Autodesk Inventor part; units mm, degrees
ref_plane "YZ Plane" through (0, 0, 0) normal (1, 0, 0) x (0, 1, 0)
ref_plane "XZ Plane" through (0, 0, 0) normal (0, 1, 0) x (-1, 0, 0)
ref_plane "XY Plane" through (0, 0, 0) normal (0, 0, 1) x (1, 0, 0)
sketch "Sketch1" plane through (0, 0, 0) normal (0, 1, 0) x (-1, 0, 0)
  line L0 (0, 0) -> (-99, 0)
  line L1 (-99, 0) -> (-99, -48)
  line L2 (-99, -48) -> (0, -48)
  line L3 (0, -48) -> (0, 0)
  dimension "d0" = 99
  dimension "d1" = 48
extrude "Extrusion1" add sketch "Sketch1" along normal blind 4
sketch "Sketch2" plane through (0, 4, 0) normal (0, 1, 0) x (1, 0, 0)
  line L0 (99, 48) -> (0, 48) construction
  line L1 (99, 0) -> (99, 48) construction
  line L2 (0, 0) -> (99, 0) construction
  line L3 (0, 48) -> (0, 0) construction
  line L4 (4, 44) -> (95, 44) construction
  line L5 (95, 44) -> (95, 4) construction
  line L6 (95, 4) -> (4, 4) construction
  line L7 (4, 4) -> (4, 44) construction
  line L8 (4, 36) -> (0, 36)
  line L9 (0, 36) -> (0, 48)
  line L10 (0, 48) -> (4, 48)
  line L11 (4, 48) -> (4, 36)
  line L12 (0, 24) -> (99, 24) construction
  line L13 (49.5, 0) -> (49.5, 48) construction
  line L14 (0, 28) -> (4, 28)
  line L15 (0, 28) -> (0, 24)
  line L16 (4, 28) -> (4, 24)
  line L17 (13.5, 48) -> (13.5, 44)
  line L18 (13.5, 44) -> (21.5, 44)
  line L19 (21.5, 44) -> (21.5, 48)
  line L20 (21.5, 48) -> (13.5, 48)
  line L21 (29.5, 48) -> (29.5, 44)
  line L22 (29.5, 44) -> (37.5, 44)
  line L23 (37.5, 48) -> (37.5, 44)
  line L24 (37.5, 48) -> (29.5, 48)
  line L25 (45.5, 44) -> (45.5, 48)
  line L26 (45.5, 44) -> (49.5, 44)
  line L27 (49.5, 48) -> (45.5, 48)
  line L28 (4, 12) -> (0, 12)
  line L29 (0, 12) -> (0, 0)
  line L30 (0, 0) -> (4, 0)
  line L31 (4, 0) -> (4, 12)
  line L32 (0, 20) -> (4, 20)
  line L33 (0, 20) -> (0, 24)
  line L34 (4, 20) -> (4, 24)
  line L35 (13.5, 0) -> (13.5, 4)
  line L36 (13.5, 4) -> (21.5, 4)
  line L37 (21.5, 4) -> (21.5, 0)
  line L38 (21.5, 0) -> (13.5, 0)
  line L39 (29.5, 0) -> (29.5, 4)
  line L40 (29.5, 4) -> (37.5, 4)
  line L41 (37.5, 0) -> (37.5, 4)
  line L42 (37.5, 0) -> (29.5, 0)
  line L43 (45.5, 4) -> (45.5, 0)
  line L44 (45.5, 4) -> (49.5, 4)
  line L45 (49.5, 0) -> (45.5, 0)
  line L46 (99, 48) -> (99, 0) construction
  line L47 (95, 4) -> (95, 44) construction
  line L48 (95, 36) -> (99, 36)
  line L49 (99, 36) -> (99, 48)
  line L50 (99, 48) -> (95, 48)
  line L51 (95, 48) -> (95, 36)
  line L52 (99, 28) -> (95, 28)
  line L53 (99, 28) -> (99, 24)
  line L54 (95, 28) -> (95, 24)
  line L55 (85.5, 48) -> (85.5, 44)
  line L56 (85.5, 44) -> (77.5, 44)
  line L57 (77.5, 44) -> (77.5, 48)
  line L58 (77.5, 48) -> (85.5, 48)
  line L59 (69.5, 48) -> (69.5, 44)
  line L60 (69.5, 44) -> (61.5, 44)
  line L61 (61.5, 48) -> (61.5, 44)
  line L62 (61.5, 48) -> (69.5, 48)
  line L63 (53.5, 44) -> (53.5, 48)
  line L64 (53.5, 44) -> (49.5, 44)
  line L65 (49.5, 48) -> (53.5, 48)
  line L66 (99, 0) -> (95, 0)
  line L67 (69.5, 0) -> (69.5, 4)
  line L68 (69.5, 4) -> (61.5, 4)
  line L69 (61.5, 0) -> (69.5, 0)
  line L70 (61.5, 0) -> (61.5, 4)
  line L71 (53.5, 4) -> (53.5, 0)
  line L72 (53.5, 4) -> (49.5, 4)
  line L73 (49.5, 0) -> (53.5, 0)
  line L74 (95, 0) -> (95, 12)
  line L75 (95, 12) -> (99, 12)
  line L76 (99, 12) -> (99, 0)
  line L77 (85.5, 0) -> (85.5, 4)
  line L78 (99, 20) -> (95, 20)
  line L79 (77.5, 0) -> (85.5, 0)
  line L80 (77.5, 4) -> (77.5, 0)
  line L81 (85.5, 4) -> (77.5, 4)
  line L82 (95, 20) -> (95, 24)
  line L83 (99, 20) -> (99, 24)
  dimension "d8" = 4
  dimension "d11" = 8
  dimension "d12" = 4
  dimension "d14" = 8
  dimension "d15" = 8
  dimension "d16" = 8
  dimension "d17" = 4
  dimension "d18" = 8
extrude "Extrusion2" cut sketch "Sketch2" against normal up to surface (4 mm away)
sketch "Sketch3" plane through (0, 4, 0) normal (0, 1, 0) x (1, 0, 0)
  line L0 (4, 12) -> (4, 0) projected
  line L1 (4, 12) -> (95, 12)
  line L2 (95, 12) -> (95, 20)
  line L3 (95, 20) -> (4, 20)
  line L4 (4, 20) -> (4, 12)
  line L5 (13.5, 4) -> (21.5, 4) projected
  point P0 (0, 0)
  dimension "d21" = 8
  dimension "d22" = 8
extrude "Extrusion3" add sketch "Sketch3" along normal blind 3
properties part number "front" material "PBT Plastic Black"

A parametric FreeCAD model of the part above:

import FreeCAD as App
import Part
import Sketcher

doc = App.newDocument("Part")
body = doc.addObject("PartDesign::Body", "Body")

sketch1 = body.newObject("Sketcher::SketchObject", "Sketch")
sketch1.AttachmentSupport = (doc.getObject("XZ_Plane"), [""])
sketch1.MapMode = "FlatFace"
sketch1.addGeometry(Part.LineSegment(App.Vector(0, -48, 0), App.Vector(0, 0, 0)), False)
sketch1.addGeometry(Part.LineSegment(App.Vector(0, 0, 0), App.Vector(99, 0, 0)), False)
sketch1.addGeometry(Part.LineSegment(App.Vector(99, 0, 0), App.Vector(99, -48, 0)), False)
sketch1.addGeometry(Part.LineSegment(App.Vector(99, -48, 0), App.Vector(0, -48, 0)), False)
sketch1.addConstraint(Sketcher.Constraint("Coincident", 0, 2, 1, 1))
sketch1.addConstraint(Sketcher.Constraint("Coincident", 1, 2, 2, 1))
sketch1.addConstraint(Sketcher.Constraint("Coincident", 2, 2, 3, 1))
sketch1.addConstraint(Sketcher.Constraint("Coincident", 3, 2, 0, 1))
sketch1.addConstraint(Sketcher.Constraint("Vertical", 0))
sketch1.addConstraint(Sketcher.Constraint("Horizontal", 1))
sketch1.addConstraint(Sketcher.Constraint("Vertical", 2))
sketch1.addConstraint(Sketcher.Constraint("Horizontal", 3))
sketch1.addConstraint(Sketcher.Constraint("Coincident", 0, 2, -1, 1))
sketch1.addConstraint(Sketcher.Constraint("DistanceX", 1, 1, 1, 2, 99.0))
sketch1.addConstraint(Sketcher.Constraint("DistanceY", 0, 1, 0, 2, 48.0))
pad1 = body.newObject("PartDesign::Pad", "Pad")
pad1.Profile = sketch1
pad1.Length = 4
pad1.Reversed = True

sketch2 = body.newObject("Sketcher::SketchObject", "Sketch001")
sketch2.AttachmentSupport = (doc.getObject("XZ_Plane"), [""])
sketch2.MapMode = "FlatFace"
sketch2.AttachmentOffset = App.Placement(App.Vector(0, 0, -4), App.Rotation())
sketch2.addGeometry(Part.LineSegment(App.Vector(0, -36, 0), App.Vector(4, -36, 0)), False)
sketch2.addGeometry(Part.LineSegment(App.Vector(4, -36, 0), App.Vector(4, -48, 0)), False)
sketch2.addGeometry(Part.LineSegment(App.Vector(4, -48, 0), App.Vector(0, -48, 0)), False)
sketch2.addGeometry(Part.LineSegment(App.Vector(0, -48, 0), App.Vector(0, -36, 0)), False)
sketch2.addGeometry(Part.LineSegment(App.Vector(4, -28, 0), App.Vector(0, -28, 0)), False)
sketch2.addGeometry(Part.LineSegment(App.Vector(0, -28, 0), App.Vector(0, -20, 0)), False)
sketch2.addGeometry(Part.LineSegment(App.Vector(0, -20, 0), App.Vector(4, -20, 0)), False)
sketch2.addGeometry(Part.LineSegment(App.Vector(4, -20, 0), App.Vector(4, -28, 0)), False)
sketch2.addGeometry(Part.LineSegment(App.Vector(21.5, -48, 0), App.Vector(13.5, -48, 0)), False)
sketch2.addGeometry(Part.LineSegment(App.Vector(13.5, -48, 0), App.Vector(13.5, -44, 0)), False)
sketch2.addGeometry(Part.LineSegment(App.Vector(13.5, -44, 0), App.Vector(21.5, -44, 0)), False)
sketch2.addGeometry(Part.LineSegment(App.Vector(21.5, -44, 0), App.Vector(21.5, -48, 0)), False)
sketch2.addGeometry(Part.LineSegment(App.Vector(37.5, -48, 0), App.Vector(29.5, -48, 0)), False)
sketch2.addGeometry(Part.LineSegment(App.Vector(29.5, -48, 0), App.Vector(29.5, -44, 0)), False)
sketch2.addGeometry(Part.LineSegment(App.Vector(29.5, -44, 0), App.Vector(37.5, -44, 0)), False)
sketch2.addGeometry(Part.LineSegment(App.Vector(37.5, -44, 0), App.Vector(37.5, -48, 0)), False)
sketch2.addGeometry(Part.LineSegment(App.Vector(45.5, -48, 0), App.Vector(45.5, -44, 0)), False)
sketch2.addGeometry(Part.LineSegment(App.Vector(45.5, -44, 0), App.Vector(53.5, -44, 0)), False)
sketch2.addGeometry(Part.LineSegment(App.Vector(53.5, -44, 0), App.Vector(53.5, -48, 0)), False)
sketch2.addGeometry(Part.LineSegment(App.Vector(53.5, -48, 0), App.Vector(45.5, -48, 0)), False)
sketch2.addGeometry(Part.LineSegment(App.Vector(4, 0, 0), App.Vector(4, -12, 0)), False)
sketch2.addGeometry(Part.LineSegment(App.Vector(4, -12, 0), App.Vector(0, -12, 0)), False)
sketch2.addGeometry(Part.LineSegment(App.Vector(0, -12, 0), App.Vector(0, 0, 0)), False)
sketch2.addGeometry(Part.LineSegment(App.Vector(0, 0, 0), App.Vector(4, 0, 0)), False)
sketch2.addGeometry(Part.LineSegment(App.Vector(13.5, -4, 0), App.Vector(13.5, 0, 0)), False)
sketch2.addGeometry(Part.LineSegment(App.Vector(13.5, 0, 0), App.Vector(21.5, 0, 0)), False)
sketch2.addGeometry(Part.LineSegment(App.Vector(21.5, 0, 0), App.Vector(21.5, -4, 0)), False)
sketch2.addGeometry(Part.LineSegment(App.Vector(21.5, -4, 0), App.Vector(13.5, -4, 0)), False)
sketch2.addGeometry(Part.LineSegment(App.Vector(29.5, -4, 0), App.Vector(29.5, 0, 0)), False)
sketch2.addGeometry(Part.LineSegment(App.Vector(29.5, 0, 0), App.Vector(37.5, 0, 0)), False)
sketch2.addGeometry(Part.LineSegment(App.Vector(37.5, 0, 0), App.Vector(37.5, -4, 0)), False)
sketch2.addGeometry(Part.LineSegment(App.Vector(37.5, -4, 0), App.Vector(29.5, -4, 0)), False)
sketch2.addGeometry(Part.LineSegment(App.Vector(53.5, -4, 0), App.Vector(45.5, -4, 0)), False)
sketch2.addGeometry(Part.LineSegment(App.Vector(45.5, -4, 0), App.Vector(45.5, 0, 0)), False)
sketch2.addGeometry(Part.LineSegment(App.Vector(45.5, 0, 0), App.Vector(53.5, 0, 0)), False)
sketch2.addGeometry(Part.LineSegment(App.Vector(53.5, 0, 0), App.Vector(53.5, -4, 0)), False)
sketch2.addGeometry(Part.LineSegment(App.Vector(95, -48, 0), App.Vector(95, -36, 0)), False)
sketch2.addGeometry(Part.LineSegment(App.Vector(95, -36, 0), App.Vector(99, -36, 0)), False)
sketch2.addGeometry(Part.LineSegment(App.Vector(99, -36, 0), App.Vector(99, -48, 0)), False)
sketch2.addGeometry(Part.LineSegment(App.Vector(99, -48, 0), App.Vector(95, -48, 0)), False)
sketch2.addGeometry(Part.LineSegment(App.Vector(99, -20, 0), App.Vector(99, -28, 0)), False)
sketch2.addGeometry(Part.LineSegment(App.Vector(99, -28, 0), App.Vector(95, -28, 0)), False)
sketch2.addGeometry(Part.LineSegment(App.Vector(95, -28, 0), App.Vector(95, -20, 0)), False)
sketch2.addGeometry(Part.LineSegment(App.Vector(95, -20, 0), App.Vector(99, -20, 0)), False)
sketch2.addGeometry(Part.LineSegment(App.Vector(85.5, -44, 0), App.Vector(85.5, -48, 0)), False)
sketch2.addGeometry(Part.LineSegment(App.Vector(85.5, -48, 0), App.Vector(77.5, -48, 0)), False)
sketch2.addGeometry(Part.LineSegment(App.Vector(77.5, -48, 0), App.Vector(77.5, -44, 0)), False)
sketch2.addGeometry(Part.LineSegment(App.Vector(77.5, -44, 0), App.Vector(85.5, -44, 0)), False)
sketch2.addGeometry(Part.LineSegment(App.Vector(69.5, -44, 0), App.Vector(69.5, -48, 0)), False)
sketch2.addGeometry(Part.LineSegment(App.Vector(69.5, -48, 0), App.Vector(61.5, -48, 0)), False)
sketch2.addGeometry(Part.LineSegment(App.Vector(61.5, -48, 0), App.Vector(61.5, -44, 0)), False)
sketch2.addGeometry(Part.LineSegment(App.Vector(61.5, -44, 0), App.Vector(69.5, -44, 0)), False)
sketch2.addGeometry(Part.LineSegment(App.Vector(95, 0, 0), App.Vector(99, 0, 0)), False)
sketch2.addGeometry(Part.LineSegment(App.Vector(99, 0, 0), App.Vector(99, -12, 0)), False)
sketch2.addGeometry(Part.LineSegment(App.Vector(99, -12, 0), App.Vector(95, -12, 0)), False)
sketch2.addGeometry(Part.LineSegment(App.Vector(95, -12, 0), App.Vector(95, 0, 0)), False)
sketch2.addGeometry(Part.LineSegment(App.Vector(61.5, 0, 0), App.Vector(69.5, 0, 0)), False)
sketch2.addGeometry(Part.LineSegment(App.Vector(69.5, 0, 0), App.Vector(69.5, -4, 0)), False)
sketch2.addGeometry(Part.LineSegment(App.Vector(69.5, -4, 0), App.Vector(61.5, -4, 0)), False)
sketch2.addGeometry(Part.LineSegment(App.Vector(61.5, -4, 0), App.Vector(61.5, 0, 0)), False)
sketch2.addGeometry(Part.LineSegment(App.Vector(77.5, 0, 0), App.Vector(85.5, 0, 0)), False)
sketch2.addGeometry(Part.LineSegment(App.Vector(85.5, 0, 0), App.Vector(85.5, -4, 0)), False)
sketch2.addGeometry(Part.LineSegment(App.Vector(85.5, -4, 0), App.Vector(77.5, -4, 0)), False)
sketch2.addGeometry(Part.LineSegment(App.Vector(77.5, -4, 0), App.Vector(77.5, 0, 0)), False)
sketch2.addConstraint(Sketcher.Constraint("Coincident", 0, 2, 1, 1))
sketch2.addConstraint(Sketcher.Constraint("Coincident", 1, 2, 2, 1))
sketch2.addConstraint(Sketcher.Constraint("Coincident", 2, 2, 3, 1))
sketch2.addConstraint(Sketcher.Constraint("Coincident", 3, 2, 0, 1))
sketch2.addConstraint(Sketcher.Constraint("Coincident", 4, 2, 5, 1))
sketch2.addConstraint(Sketcher.Constraint("Coincident", 5, 2, 6, 1))
sketch2.addConstraint(Sketcher.Constraint("Coincident", 6, 2, 7, 1))
sketch2.addConstraint(Sketcher.Constraint("Coincident", 7, 2, 4, 1))
sketch2.addConstraint(Sketcher.Constraint("Coincident", 8, 2, 9, 1))
sketch2.addConstraint(Sketcher.Constraint("Coincident", 9, 2, 10, 1))
sketch2.addConstraint(Sketcher.Constraint("Coincident", 10, 2, 11, 1))
sketch2.addConstraint(Sketcher.Constraint("Coincident", 11, 2, 8, 1))
sketch2.addConstraint(Sketcher.Constraint("Coincident", 12, 2, 13, 1))
sketch2.addConstraint(Sketcher.Constraint("Coincident", 13, 2, 14, 1))
sketch2.addConstraint(Sketcher.Constraint("Coincident", 14, 2, 15, 1))
sketch2.addConstraint(Sketcher.Constraint("Coincident", 15, 2, 12, 1))
sketch2.addConstraint(Sketcher.Constraint("Coincident", 16, 2, 17, 1))
sketch2.addConstraint(Sketcher.Constraint("Coincident", 17, 2, 18, 1))
sketch2.addConstraint(Sketcher.Constraint("Coincident", 18, 2, 19, 1))
sketch2.addConstraint(Sketcher.Constraint("Coincident", 19, 2, 16, 1))
sketch2.addConstraint(Sketcher.Constraint("Coincident", 20, 2, 21, 1))
sketch2.addConstraint(Sketcher.Constraint("Coincident", 21, 2, 22, 1))
sketch2.addConstraint(Sketcher.Constraint("Coincident", 22, 2, 23, 1))
sketch2.addConstraint(Sketcher.Constraint("Coincident", 23, 2, 20, 1))
sketch2.addConstraint(Sketcher.Constraint("Coincident", 24, 2, 25, 1))
sketch2.addConstraint(Sketcher.Constraint("Coincident", 25, 2, 26, 1))
sketch2.addConstraint(Sketcher.Constraint("Coincident", 26, 2, 27, 1))
sketch2.addConstraint(Sketcher.Constraint("Coincident", 27, 2, 24, 1))
sketch2.addConstraint(Sketcher.Constraint("Coincident", 28, 2, 29, 1))
sketch2.addConstraint(Sketcher.Constraint("Coincident", 29, 2, 30, 1))
sketch2.addConstraint(Sketcher.Constraint("Coincident", 30, 2, 31, 1))
sketch2.addConstraint(Sketcher.Constraint("Coincident", 31, 2, 28, 1))
sketch2.addConstraint(Sketcher.Constraint("Coincident", 32, 2, 33, 1))
sketch2.addConstraint(Sketcher.Constraint("Coincident", 33, 2, 34, 1))
sketch2.addConstraint(Sketcher.Constraint("Coincident", 34, 2, 35, 1))
sketch2.addConstraint(Sketcher.Constraint("Coincident", 35, 2, 32, 1))
sketch2.addConstraint(Sketcher.Constraint("Coincident", 36, 2, 37, 1))
sketch2.addConstraint(Sketcher.Constraint("Coincident", 37, 2, 38, 1))
sketch2.addConstraint(Sketcher.Constraint("Coincident", 38, 2, 39, 1))
sketch2.addConstraint(Sketcher.Constraint("Coincident", 39, 2, 36, 1))
sketch2.addConstraint(Sketcher.Constraint("Coincident", 40, 2, 41, 1))
sketch2.addConstraint(Sketcher.Constraint("Coincident", 41, 2, 42, 1))
sketch2.addConstraint(Sketcher.Constraint("Coincident", 42, 2, 43, 1))
sketch2.addConstraint(Sketcher.Constraint("Coincident", 43, 2, 40, 1))
sketch2.addConstraint(Sketcher.Constraint("Coincident", 44, 2, 45, 1))
sketch2.addConstraint(Sketcher.Constraint("Coincident", 45, 2, 46, 1))
sketch2.addConstraint(Sketcher.Constraint("Coincident", 46, 2, 47, 1))
sketch2.addConstraint(Sketcher.Constraint("Coincident", 47, 2, 44, 1))
sketch2.addConstraint(Sketcher.Constraint("Coincident", 48, 2, 49, 1))
sketch2.addConstraint(Sketcher.Constraint("Coincident", 49, 2, 50, 1))
sketch2.addConstraint(Sketcher.Constraint("Coincident", 50, 2, 51, 1))
sketch2.addConstraint(Sketcher.Constraint("Coincident", 51, 2, 48, 1))
sketch2.addConstraint(Sketcher.Constraint("Coincident", 52, 2, 53, 1))
sketch2.addConstraint(Sketcher.Constraint("Coincident", 53, 2, 54, 1))
sketch2.addConstraint(Sketcher.Constraint("Coincident", 54, 2, 55, 1))
sketch2.addConstraint(Sketcher.Constraint("Coincident", 55, 2, 52, 1))
sketch2.addConstraint(Sketcher.Constraint("Coincident", 56, 2, 57, 1))
sketch2.addConstraint(Sketcher.Constraint("Coincident", 57, 2, 58, 1))
sketch2.addConstraint(Sketcher.Constraint("Coincident", 58, 2, 59, 1))
sketch2.addConstraint(Sketcher.Constraint("Coincident", 59, 2, 56, 1))
sketch2.addConstraint(Sketcher.Constraint("Coincident", 60, 2, 61, 1))
sketch2.addConstraint(Sketcher.Constraint("Coincident", 61, 2, 62, 1))
sketch2.addConstraint(Sketcher.Constraint("Coincident", 62, 2, 63, 1))
sketch2.addConstraint(Sketcher.Constraint("Coincident", 63, 2, 60, 1))
sketch2.addConstraint(Sketcher.Constraint("Horizontal", 0))
sketch2.addConstraint(Sketcher.Constraint("Vertical", 1))
sketch2.addConstraint(Sketcher.Constraint("Horizontal", 2))
sketch2.addConstraint(Sketcher.Constraint("Vertical", 3))
sketch2.addConstraint(Sketcher.Constraint("Horizontal", 4))
sketch2.addConstraint(Sketcher.Constraint("Vertical", 5))
sketch2.addConstraint(Sketcher.Constraint("Horizontal", 6))
sketch2.addConstraint(Sketcher.Constraint("Vertical", 7))
sketch2.addConstraint(Sketcher.Constraint("Horizontal", 8))
sketch2.addConstraint(Sketcher.Constraint("Vertical", 9))
sketch2.addConstraint(Sketcher.Constraint("Horizontal", 10))
sketch2.addConstraint(Sketcher.Constraint("Vertical", 11))
sketch2.addConstraint(Sketcher.Constraint("Horizontal", 12))
sketch2.addConstraint(Sketcher.Constraint("Vertical", 13))
sketch2.addConstraint(Sketcher.Constraint("Horizontal", 14))
sketch2.addConstraint(Sketcher.Constraint("Vertical", 15))
sketch2.addConstraint(Sketcher.Constraint("Vertical", 16))
sketch2.addConstraint(Sketcher.Constraint("Horizontal", 17))
sketch2.addConstraint(Sketcher.Constraint("Vertical", 18))
sketch2.addConstraint(Sketcher.Constraint("Horizontal", 19))
sketch2.addConstraint(Sketcher.Constraint("Vertical", 20))
sketch2.addConstraint(Sketcher.Constraint("Horizontal", 21))
sketch2.addConstraint(Sketcher.Constraint("Vertical", 22))
sketch2.addConstraint(Sketcher.Constraint("Horizontal", 23))
sketch2.addConstraint(Sketcher.Constraint("Vertical", 24))
sketch2.addConstraint(Sketcher.Constraint("Horizontal", 25))
sketch2.addConstraint(Sketcher.Constraint("Vertical", 26))
sketch2.addConstraint(Sketcher.Constraint("Horizontal", 27))
sketch2.addConstraint(Sketcher.Constraint("Vertical", 28))
sketch2.addConstraint(Sketcher.Constraint("Horizontal", 29))
sketch2.addConstraint(Sketcher.Constraint("Vertical", 30))
sketch2.addConstraint(Sketcher.Constraint("Horizontal", 31))
sketch2.addConstraint(Sketcher.Constraint("Horizontal", 32))
sketch2.addConstraint(Sketcher.Constraint("Vertical", 33))
sketch2.addConstraint(Sketcher.Constraint("Horizontal", 34))
sketch2.addConstraint(Sketcher.Constraint("Vertical", 35))
sketch2.addConstraint(Sketcher.Constraint("Vertical", 36))
sketch2.addConstraint(Sketcher.Constraint("Horizontal", 37))
sketch2.addConstraint(Sketcher.Constraint("Vertical", 38))
sketch2.addConstraint(Sketcher.Constraint("Horizontal", 39))
sketch2.addConstraint(Sketcher.Constraint("Vertical", 40))
sketch2.addConstraint(Sketcher.Constraint("Horizontal", 41))
sketch2.addConstraint(Sketcher.Constraint("Vertical", 42))
sketch2.addConstraint(Sketcher.Constraint("Horizontal", 43))
sketch2.addConstraint(Sketcher.Constraint("Vertical", 44))
sketch2.addConstraint(Sketcher.Constraint("Horizontal", 45))
sketch2.addConstraint(Sketcher.Constraint("Vertical", 46))
sketch2.addConstraint(Sketcher.Constraint("Horizontal", 47))
sketch2.addConstraint(Sketcher.Constraint("Vertical", 48))
sketch2.addConstraint(Sketcher.Constraint("Horizontal", 49))
sketch2.addConstraint(Sketcher.Constraint("Vertical", 50))
sketch2.addConstraint(Sketcher.Constraint("Horizontal", 51))
sketch2.addConstraint(Sketcher.Constraint("Horizontal", 52))
sketch2.addConstraint(Sketcher.Constraint("Vertical", 53))
sketch2.addConstraint(Sketcher.Constraint("Horizontal", 54))
sketch2.addConstraint(Sketcher.Constraint("Vertical", 55))
sketch2.addConstraint(Sketcher.Constraint("Horizontal", 56))
sketch2.addConstraint(Sketcher.Constraint("Vertical", 57))
sketch2.addConstraint(Sketcher.Constraint("Horizontal", 58))
sketch2.addConstraint(Sketcher.Constraint("Vertical", 59))
sketch2.addConstraint(Sketcher.Constraint("Horizontal", 60))
sketch2.addConstraint(Sketcher.Constraint("Vertical", 61))
sketch2.addConstraint(Sketcher.Constraint("Horizontal", 62))
sketch2.addConstraint(Sketcher.Constraint("Vertical", 63))
sketch2.addConstraint(Sketcher.Constraint("Coincident", 22, 2, -1, 1))
sketch2.addConstraint(Sketcher.Constraint("PointOnObject", 2, 2, -2))
sketch2.addConstraint(Sketcher.Constraint("PointOnObject", 4, 2, -2))
sketch2.addConstraint(Sketcher.Constraint("PointOnObject", 24, 2, -1))
sketch2.addConstraint(Sketcher.Constraint("PointOnObject", 28, 2, -1))
sketch2.addConstraint(Sketcher.Constraint("PointOnObject", 33, 2, -1))
sketch2.addConstraint(Sketcher.Constraint("PointOnObject", 52, 2, -1))
sketch2.addConstraint(Sketcher.Constraint("PointOnObject", 56, 2, -1))
sketch2.addConstraint(Sketcher.Constraint("PointOnObject", 60, 2, -1))
sketch2.addConstraint(Sketcher.Constraint("Horizontal", 2, 2, 8, 2))
sketch2.addConstraint(Sketcher.Constraint("Horizontal", 11, 2, 12, 2))
sketch2.addConstraint(Sketcher.Constraint("Horizontal", 10, 2, 13, 2))
sketch2.addConstraint(Sketcher.Constraint("Horizontal", 14, 2, 16, 2))
sketch2.addConstraint(Sketcher.Constraint("Horizontal", 15, 2, 18, 2))
sketch2.addConstraint(Sketcher.Constraint("Horizontal", 27, 2, 30, 2))
sketch2.addConstraint(Sketcher.Constraint("Horizontal", 31, 2, 32, 2))
sketch2.addConstraint(Sketcher.Constraint("Horizontal", 3, 2, 36, 2))
sketch2.addConstraint(Sketcher.Constraint("Horizontal", 19, 2, 38, 2))
sketch2.addConstraint(Sketcher.Constraint("Horizontal", 7, 2, 40, 2))
sketch2.addConstraint(Sketcher.Constraint("Horizontal", 6, 2, 42, 2))
sketch2.addConstraint(Sketcher.Constraint("Horizontal", 39, 2, 44, 2))
sketch2.addConstraint(Sketcher.Constraint("Horizontal", 17, 2, 46, 2))
sketch2.addConstraint(Sketcher.Constraint("Horizontal", 45, 2, 48, 2))
sketch2.addConstraint(Sketcher.Constraint("Horizontal", 47, 2, 50, 2))
sketch2.addConstraint(Sketcher.Constraint("Horizontal", 21, 2, 53, 2))
sketch2.addConstraint(Sketcher.Constraint("Horizontal", 35, 2, 57, 2))
sketch2.addConstraint(Sketcher.Constraint("Horizontal", 58, 2, 61, 2))
sketch2.addConstraint(Sketcher.Constraint("Vertical", 1, 2, 6, 2))
sketch2.addConstraint(Sketcher.Constraint("Vertical", 7, 2, 20, 2))
sketch2.addConstraint(Sketcher.Constraint("Vertical", 9, 2, 24, 2))
sketch2.addConstraint(Sketcher.Constraint("Vertical", 11, 2, 25, 2))
sketch2.addConstraint(Sketcher.Constraint("Vertical", 13, 2, 28, 2))
sketch2.addConstraint(Sketcher.Constraint("Vertical", 15, 2, 29, 2))
sketch2.addConstraint(Sketcher.Constraint("Vertical", 19, 2, 32, 2))
sketch2.addConstraint(Sketcher.Constraint("Vertical", 18, 2, 34, 2))
sketch2.addConstraint(Sketcher.Constraint("Vertical", 38, 2, 40, 2))
sketch2.addConstraint(Sketcher.Constraint("Vertical", 39, 2, 41, 2))
sketch2.addConstraint(Sketcher.Constraint("Vertical", 43, 2, 52, 2))
sketch2.addConstraint(Sketcher.Constraint("Vertical", 42, 2, 54, 2))
sketch2.addConstraint(Sketcher.Constraint("Vertical", 51, 2, 56, 2))
sketch2.addConstraint(Sketcher.Constraint("Vertical", 50, 2, 58, 2))
sketch2.addConstraint(Sketcher.Constraint("Vertical", 47, 2, 60, 2))
sketch2.addConstraint(Sketcher.Constraint("Vertical", 46, 2, 62, 2))
sketch2.addConstraint(Sketcher.Constraint("Equal", 10, 12))
sketch2.addConstraint(Sketcher.Constraint("Equal", 14, 17))
sketch2.addConstraint(Sketcher.Constraint("Equal", 23, 37))
sketch2.addConstraint(Sketcher.Constraint("Equal", 34, 45))
sketch2.addConstraint(Sketcher.Constraint("Equal", 47, 49))
sketch2.addConstraint(Sketcher.Constraint("Equal", 62, 5))
sketch2.addConstraint(Sketcher.Constraint("Equal", 54, 9))
sketch2.addConstraint(Sketcher.Constraint("Equal", 3, 20))
sketch2.addConstraint(Sketcher.Constraint("Equal", 18, 24))
sketch2.addConstraint(Sketcher.Constraint("DistanceX", 0, 1, 0, 2, 4.0))
sketch2.addConstraint(Sketcher.Constraint("DistanceX", 8, 2, 8, 1, 8.0))
sketch2.addConstraint(Sketcher.Constraint("DistanceY", 1, 2, 1, 1, 12.0))
sketch2.addConstraint(Sketcher.Constraint("DistanceY", 0, 2, -1, 1, 36.0))
sketch2.addConstraint(Sketcher.Constraint("DistanceY", 4, 2, -1, 1, 28.0))
sketch2.addConstraint(Sketcher.Constraint("DistanceX", -1, 1, 36, 2, 95.0))
sketch2.addConstraint(Sketcher.Constraint("DistanceX", -1, 1, 8, 2, 13.5))
sketch2.addConstraint(Sketcher.Constraint("DistanceX", -1, 1, 12, 2, 29.5))
sketch2.addConstraint(Sketcher.Constraint("DistanceX", -1, 1, 16, 2, 45.5))
sketch2.addConstraint(Sketcher.Constraint("DistanceX", -1, 1, 44, 2, 85.5))
sketch2.addConstraint(Sketcher.Constraint("DistanceX", -1, 1, 48, 2, 69.5))
pocket1 = body.newObject("PartDesign::Pocket", "Pocket")
pocket1.Profile = sketch2
pocket1.Length = 4
pocket1.Reversed = True

sketch3 = body.newObject("Sketcher::SketchObject", "Sketch002")
sketch3.AttachmentSupport = (doc.getObject("XZ_Plane"), [""])
sketch3.MapMode = "FlatFace"
sketch3.AttachmentOffset = App.Placement(App.Vector(0, 0, -4), App.Rotation())
sketch3.addGeometry(Part.LineSegment(App.Vector(4, -20, 0), App.Vector(4, -12, 0)), False)
sketch3.addGeometry(Part.LineSegment(App.Vector(4, -12, 0), App.Vector(95, -12, 0)), False)
sketch3.addGeometry(Part.LineSegment(App.Vector(95, -12, 0), App.Vector(95, -20, 0)), False)
sketch3.addGeometry(Part.LineSegment(App.Vector(95, -20, 0), App.Vector(4, -20, 0)), False)
sketch3.addConstraint(Sketcher.Constraint("Coincident", 0, 2, 1, 1))
sketch3.addConstraint(Sketcher.Constraint("Coincident", 1, 2, 2, 1))
sketch3.addConstraint(Sketcher.Constraint("Coincident", 2, 2, 3, 1))
sketch3.addConstraint(Sketcher.Constraint("Coincident", 3, 2, 0, 1))
sketch3.addConstraint(Sketcher.Constraint("Vertical", 0))
sketch3.addConstraint(Sketcher.Constraint("Horizontal", 1))
sketch3.addConstraint(Sketcher.Constraint("Vertical", 2))
sketch3.addConstraint(Sketcher.Constraint("Horizontal", 3))
sketch3.addConstraint(Sketcher.Constraint("DistanceY", 0, 1, 0, 2, 8.0))
sketch3.addConstraint(Sketcher.Constraint("DistanceX", 1, 1, 1, 2, 91.0))
sketch3.addConstraint(Sketcher.Constraint("DistanceX", -1, 1, 0, 2, 4.0))
sketch3.addConstraint(Sketcher.Constraint("DistanceY", 0, 2, -1, 1, 12.0))
pad2 = body.newObject("PartDesign::Pad", "Pad001")
pad2.Profile = sketch3
pad2.Length = 3
pad2.Reversed = True

doc.recompute()
